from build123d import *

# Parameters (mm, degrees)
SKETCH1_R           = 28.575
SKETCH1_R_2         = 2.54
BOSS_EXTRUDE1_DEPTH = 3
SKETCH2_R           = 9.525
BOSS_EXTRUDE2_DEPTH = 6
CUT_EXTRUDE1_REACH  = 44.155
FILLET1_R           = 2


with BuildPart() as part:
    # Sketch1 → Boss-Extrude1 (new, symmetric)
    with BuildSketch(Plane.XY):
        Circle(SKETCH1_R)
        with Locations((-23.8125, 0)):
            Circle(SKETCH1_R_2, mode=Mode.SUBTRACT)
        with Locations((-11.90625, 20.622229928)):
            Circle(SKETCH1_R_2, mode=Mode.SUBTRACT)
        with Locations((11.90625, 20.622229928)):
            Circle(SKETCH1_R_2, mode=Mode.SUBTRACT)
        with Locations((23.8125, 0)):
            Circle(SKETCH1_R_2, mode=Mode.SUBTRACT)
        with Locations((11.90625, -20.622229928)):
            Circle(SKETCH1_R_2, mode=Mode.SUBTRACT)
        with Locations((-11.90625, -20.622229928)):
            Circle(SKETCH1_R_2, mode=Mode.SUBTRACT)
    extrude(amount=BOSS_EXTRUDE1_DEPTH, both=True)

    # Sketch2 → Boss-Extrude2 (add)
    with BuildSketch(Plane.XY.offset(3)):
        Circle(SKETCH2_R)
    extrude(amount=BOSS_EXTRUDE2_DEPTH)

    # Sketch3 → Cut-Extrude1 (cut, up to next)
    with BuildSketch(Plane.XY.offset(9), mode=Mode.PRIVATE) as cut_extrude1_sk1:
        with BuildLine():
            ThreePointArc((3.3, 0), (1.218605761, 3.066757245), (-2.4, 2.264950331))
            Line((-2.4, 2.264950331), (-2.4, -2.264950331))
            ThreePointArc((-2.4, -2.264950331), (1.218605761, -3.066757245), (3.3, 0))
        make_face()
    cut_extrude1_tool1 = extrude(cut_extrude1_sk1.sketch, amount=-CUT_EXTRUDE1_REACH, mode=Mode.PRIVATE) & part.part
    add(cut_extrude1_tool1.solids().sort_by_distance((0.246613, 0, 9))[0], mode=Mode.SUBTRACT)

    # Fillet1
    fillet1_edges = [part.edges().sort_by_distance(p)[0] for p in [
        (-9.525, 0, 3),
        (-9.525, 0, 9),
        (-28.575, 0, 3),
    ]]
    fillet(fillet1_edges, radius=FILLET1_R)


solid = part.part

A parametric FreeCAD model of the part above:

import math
import FreeCAD as App
import Part
import Sketcher

V = App.Vector
Q = App.Units.Quantity


def edges_at(feature, points):
    """Names of the edges that pass closest to the given points."""
    edges = feature.Shape.Edges
    near = lambda p: min(range(len(edges)), key=lambda i: edges[i].distToShape(Part.Vertex(*p))[0])
    return sorted({f"Edge{near(p) + 1}" for p in points})

doc = App.newDocument("Part")
body = doc.addObject("PartDesign::Body", "Body")

sketch1 = body.newObject("Sketcher::SketchObject", "Sketch")
sketch1.AttachmentSupport = (doc.getObject("XY_Plane"), [""])
sketch1.MapMode = "FlatFace"
sketch1.addGeometry([
    Part.Circle(V(0, 0, 0), V(0, 0, 1), 28.6),
    Part.Circle(V(-11.9, -20.6, 0), V(0, 0, 1), 2.5),
    Part.Circle(V(11.9, -20.6, 0), V(0, 0, 1), 2.5),
    Part.Circle(V(-23.8, 0, 0), V(0, 0, 1), 2.5),
    Part.Circle(V(-11.9, 20.6, 0), V(0, 0, 1), 2.5),
    Part.Circle(V(23.8, 0, 0), V(0, 0, 1), 2.5),
    Part.Circle(V(11.9, 20.6, 0), V(0, 0, 1), 2.5),
], False)
sketch1.addConstraint([
    Sketcher.Constraint("Coincident", 0, 3, -1, 1),
    Sketcher.Constraint("Equal", 1, 2),
    Sketcher.Constraint("Equal", 2, 3),
    Sketcher.Constraint("Equal", 3, 4),
    Sketcher.Constraint("Equal", 4, 5),
    Sketcher.Constraint("Equal", 5, 6),
    Sketcher.Constraint("Symmetric", 2, 3, 4, 3, -1, 1),
    Sketcher.Constraint("Symmetric", 3, 3, 5, 3, -1, 1),
    Sketcher.Constraint("Symmetric", 1, 3, 6, 3, -1, 1),
    Sketcher.Constraint("Symmetric", 1, 3, 2, 3, -2),
    Sketcher.Constraint("PointOnObject", 3, 3, -1),
    Sketcher.Constraint("Diameter", 0, Q("57.15 mm")),
    Sketcher.Constraint("Diameter", 1, Q("5.08 mm")),
    Sketcher.Constraint("DistanceX", 3, 3, 5, 3, Q("47.625 mm")),
    Sketcher.Constraint("DistanceX", 1, 3, 2, 3, Q("23.8125 mm")),
    Sketcher.Constraint("DistanceY", 1, 3, -1, 1, Q("20.62223 mm")),
])
pad1 = body.newObject("PartDesign::Pad", "Pad")
pad1.Profile = sketch1
pad1.Length = 6
pad1.Midplane = True

sketch2 = body.newObject("Sketcher::SketchObject", "Sketch001")
sketch2.AttachmentSupport = (doc.getObject("XY_Plane"), [""])
sketch2.MapMode = "FlatFace"
sketch2.AttachmentOffset = App.Placement(V(0, 0, 3), App.Rotation())
sketch2.addGeometry(Part.Circle(V(0, 0, 0), V(0, 0, 1), 10), False)
sketch2.addConstraint([
    Sketcher.Constraint("Coincident", 0, 3, -1, 1),
    Sketcher.Constraint("Diameter", 0, Q("19.05 mm")),
])
pad2 = body.newObject("PartDesign::Pad", "Pad001")
pad2.Profile = sketch2
pad2.Length = 6

sketch3 = body.newObject("Sketcher::SketchObject", "Sketch002")
sketch3.AttachmentSupport = (doc.getObject("XY_Plane"), [""])
sketch3.MapMode = "FlatFace"
sketch3.AttachmentOffset = App.Placement(V(0, 0, 9), App.Rotation())
sketch3.addGeometry([
    Part.ArcOfCircle(Part.Circle(V(0, 0, 0), V(0, 0, 1), 3.3), math.radians(0), math.radians(137)),
    Part.LineSegment(V(-2.4, 2.3, 0), V(-2.4, -2.3, 0)),
    Part.ArcOfCircle(Part.Circle(V(0, 0, 0), V(0, 0, 1), 3.3), math.radians(-137), math.radians(0)),
], False)
sketch3.addConstraint([
    Sketcher.Constraint("Coincident", 0, 2, 1, 1),
    Sketcher.Constraint("Coincident", 1, 2, 2, 1),
    Sketcher.Constraint("Tangent", 2, 2, 0, 1),
    Sketcher.Constraint("Vertical", 1),
    Sketcher.Constraint("Coincident", 0, 3, -1, 1),
    Sketcher.Constraint("Equal", 0, 2),
    Sketcher.Constraint("PointOnObject", 2, 2, -1),
    Sketcher.Constraint("Radius", 0, Q("3.3 mm")),
    Sketcher.Constraint("DistanceX", 0, 2, -1, 1, Q("2.4 mm")),
])
pocket1 = body.newObject("PartDesign::Pocket", "Pocket")
pocket1.Profile = sketch3
pocket1.Type = "UpToFirst"
doc.recompute()

fillet = body.newObject("PartDesign::Fillet", "Fillet")
fillet.Base = (pocket1, edges_at(pocket1, [(-9.525, 0, 3), (-9.525, 0, 9), (-28.575, 0, 3)]))
fillet.Radius = 2

doc.recompute()
